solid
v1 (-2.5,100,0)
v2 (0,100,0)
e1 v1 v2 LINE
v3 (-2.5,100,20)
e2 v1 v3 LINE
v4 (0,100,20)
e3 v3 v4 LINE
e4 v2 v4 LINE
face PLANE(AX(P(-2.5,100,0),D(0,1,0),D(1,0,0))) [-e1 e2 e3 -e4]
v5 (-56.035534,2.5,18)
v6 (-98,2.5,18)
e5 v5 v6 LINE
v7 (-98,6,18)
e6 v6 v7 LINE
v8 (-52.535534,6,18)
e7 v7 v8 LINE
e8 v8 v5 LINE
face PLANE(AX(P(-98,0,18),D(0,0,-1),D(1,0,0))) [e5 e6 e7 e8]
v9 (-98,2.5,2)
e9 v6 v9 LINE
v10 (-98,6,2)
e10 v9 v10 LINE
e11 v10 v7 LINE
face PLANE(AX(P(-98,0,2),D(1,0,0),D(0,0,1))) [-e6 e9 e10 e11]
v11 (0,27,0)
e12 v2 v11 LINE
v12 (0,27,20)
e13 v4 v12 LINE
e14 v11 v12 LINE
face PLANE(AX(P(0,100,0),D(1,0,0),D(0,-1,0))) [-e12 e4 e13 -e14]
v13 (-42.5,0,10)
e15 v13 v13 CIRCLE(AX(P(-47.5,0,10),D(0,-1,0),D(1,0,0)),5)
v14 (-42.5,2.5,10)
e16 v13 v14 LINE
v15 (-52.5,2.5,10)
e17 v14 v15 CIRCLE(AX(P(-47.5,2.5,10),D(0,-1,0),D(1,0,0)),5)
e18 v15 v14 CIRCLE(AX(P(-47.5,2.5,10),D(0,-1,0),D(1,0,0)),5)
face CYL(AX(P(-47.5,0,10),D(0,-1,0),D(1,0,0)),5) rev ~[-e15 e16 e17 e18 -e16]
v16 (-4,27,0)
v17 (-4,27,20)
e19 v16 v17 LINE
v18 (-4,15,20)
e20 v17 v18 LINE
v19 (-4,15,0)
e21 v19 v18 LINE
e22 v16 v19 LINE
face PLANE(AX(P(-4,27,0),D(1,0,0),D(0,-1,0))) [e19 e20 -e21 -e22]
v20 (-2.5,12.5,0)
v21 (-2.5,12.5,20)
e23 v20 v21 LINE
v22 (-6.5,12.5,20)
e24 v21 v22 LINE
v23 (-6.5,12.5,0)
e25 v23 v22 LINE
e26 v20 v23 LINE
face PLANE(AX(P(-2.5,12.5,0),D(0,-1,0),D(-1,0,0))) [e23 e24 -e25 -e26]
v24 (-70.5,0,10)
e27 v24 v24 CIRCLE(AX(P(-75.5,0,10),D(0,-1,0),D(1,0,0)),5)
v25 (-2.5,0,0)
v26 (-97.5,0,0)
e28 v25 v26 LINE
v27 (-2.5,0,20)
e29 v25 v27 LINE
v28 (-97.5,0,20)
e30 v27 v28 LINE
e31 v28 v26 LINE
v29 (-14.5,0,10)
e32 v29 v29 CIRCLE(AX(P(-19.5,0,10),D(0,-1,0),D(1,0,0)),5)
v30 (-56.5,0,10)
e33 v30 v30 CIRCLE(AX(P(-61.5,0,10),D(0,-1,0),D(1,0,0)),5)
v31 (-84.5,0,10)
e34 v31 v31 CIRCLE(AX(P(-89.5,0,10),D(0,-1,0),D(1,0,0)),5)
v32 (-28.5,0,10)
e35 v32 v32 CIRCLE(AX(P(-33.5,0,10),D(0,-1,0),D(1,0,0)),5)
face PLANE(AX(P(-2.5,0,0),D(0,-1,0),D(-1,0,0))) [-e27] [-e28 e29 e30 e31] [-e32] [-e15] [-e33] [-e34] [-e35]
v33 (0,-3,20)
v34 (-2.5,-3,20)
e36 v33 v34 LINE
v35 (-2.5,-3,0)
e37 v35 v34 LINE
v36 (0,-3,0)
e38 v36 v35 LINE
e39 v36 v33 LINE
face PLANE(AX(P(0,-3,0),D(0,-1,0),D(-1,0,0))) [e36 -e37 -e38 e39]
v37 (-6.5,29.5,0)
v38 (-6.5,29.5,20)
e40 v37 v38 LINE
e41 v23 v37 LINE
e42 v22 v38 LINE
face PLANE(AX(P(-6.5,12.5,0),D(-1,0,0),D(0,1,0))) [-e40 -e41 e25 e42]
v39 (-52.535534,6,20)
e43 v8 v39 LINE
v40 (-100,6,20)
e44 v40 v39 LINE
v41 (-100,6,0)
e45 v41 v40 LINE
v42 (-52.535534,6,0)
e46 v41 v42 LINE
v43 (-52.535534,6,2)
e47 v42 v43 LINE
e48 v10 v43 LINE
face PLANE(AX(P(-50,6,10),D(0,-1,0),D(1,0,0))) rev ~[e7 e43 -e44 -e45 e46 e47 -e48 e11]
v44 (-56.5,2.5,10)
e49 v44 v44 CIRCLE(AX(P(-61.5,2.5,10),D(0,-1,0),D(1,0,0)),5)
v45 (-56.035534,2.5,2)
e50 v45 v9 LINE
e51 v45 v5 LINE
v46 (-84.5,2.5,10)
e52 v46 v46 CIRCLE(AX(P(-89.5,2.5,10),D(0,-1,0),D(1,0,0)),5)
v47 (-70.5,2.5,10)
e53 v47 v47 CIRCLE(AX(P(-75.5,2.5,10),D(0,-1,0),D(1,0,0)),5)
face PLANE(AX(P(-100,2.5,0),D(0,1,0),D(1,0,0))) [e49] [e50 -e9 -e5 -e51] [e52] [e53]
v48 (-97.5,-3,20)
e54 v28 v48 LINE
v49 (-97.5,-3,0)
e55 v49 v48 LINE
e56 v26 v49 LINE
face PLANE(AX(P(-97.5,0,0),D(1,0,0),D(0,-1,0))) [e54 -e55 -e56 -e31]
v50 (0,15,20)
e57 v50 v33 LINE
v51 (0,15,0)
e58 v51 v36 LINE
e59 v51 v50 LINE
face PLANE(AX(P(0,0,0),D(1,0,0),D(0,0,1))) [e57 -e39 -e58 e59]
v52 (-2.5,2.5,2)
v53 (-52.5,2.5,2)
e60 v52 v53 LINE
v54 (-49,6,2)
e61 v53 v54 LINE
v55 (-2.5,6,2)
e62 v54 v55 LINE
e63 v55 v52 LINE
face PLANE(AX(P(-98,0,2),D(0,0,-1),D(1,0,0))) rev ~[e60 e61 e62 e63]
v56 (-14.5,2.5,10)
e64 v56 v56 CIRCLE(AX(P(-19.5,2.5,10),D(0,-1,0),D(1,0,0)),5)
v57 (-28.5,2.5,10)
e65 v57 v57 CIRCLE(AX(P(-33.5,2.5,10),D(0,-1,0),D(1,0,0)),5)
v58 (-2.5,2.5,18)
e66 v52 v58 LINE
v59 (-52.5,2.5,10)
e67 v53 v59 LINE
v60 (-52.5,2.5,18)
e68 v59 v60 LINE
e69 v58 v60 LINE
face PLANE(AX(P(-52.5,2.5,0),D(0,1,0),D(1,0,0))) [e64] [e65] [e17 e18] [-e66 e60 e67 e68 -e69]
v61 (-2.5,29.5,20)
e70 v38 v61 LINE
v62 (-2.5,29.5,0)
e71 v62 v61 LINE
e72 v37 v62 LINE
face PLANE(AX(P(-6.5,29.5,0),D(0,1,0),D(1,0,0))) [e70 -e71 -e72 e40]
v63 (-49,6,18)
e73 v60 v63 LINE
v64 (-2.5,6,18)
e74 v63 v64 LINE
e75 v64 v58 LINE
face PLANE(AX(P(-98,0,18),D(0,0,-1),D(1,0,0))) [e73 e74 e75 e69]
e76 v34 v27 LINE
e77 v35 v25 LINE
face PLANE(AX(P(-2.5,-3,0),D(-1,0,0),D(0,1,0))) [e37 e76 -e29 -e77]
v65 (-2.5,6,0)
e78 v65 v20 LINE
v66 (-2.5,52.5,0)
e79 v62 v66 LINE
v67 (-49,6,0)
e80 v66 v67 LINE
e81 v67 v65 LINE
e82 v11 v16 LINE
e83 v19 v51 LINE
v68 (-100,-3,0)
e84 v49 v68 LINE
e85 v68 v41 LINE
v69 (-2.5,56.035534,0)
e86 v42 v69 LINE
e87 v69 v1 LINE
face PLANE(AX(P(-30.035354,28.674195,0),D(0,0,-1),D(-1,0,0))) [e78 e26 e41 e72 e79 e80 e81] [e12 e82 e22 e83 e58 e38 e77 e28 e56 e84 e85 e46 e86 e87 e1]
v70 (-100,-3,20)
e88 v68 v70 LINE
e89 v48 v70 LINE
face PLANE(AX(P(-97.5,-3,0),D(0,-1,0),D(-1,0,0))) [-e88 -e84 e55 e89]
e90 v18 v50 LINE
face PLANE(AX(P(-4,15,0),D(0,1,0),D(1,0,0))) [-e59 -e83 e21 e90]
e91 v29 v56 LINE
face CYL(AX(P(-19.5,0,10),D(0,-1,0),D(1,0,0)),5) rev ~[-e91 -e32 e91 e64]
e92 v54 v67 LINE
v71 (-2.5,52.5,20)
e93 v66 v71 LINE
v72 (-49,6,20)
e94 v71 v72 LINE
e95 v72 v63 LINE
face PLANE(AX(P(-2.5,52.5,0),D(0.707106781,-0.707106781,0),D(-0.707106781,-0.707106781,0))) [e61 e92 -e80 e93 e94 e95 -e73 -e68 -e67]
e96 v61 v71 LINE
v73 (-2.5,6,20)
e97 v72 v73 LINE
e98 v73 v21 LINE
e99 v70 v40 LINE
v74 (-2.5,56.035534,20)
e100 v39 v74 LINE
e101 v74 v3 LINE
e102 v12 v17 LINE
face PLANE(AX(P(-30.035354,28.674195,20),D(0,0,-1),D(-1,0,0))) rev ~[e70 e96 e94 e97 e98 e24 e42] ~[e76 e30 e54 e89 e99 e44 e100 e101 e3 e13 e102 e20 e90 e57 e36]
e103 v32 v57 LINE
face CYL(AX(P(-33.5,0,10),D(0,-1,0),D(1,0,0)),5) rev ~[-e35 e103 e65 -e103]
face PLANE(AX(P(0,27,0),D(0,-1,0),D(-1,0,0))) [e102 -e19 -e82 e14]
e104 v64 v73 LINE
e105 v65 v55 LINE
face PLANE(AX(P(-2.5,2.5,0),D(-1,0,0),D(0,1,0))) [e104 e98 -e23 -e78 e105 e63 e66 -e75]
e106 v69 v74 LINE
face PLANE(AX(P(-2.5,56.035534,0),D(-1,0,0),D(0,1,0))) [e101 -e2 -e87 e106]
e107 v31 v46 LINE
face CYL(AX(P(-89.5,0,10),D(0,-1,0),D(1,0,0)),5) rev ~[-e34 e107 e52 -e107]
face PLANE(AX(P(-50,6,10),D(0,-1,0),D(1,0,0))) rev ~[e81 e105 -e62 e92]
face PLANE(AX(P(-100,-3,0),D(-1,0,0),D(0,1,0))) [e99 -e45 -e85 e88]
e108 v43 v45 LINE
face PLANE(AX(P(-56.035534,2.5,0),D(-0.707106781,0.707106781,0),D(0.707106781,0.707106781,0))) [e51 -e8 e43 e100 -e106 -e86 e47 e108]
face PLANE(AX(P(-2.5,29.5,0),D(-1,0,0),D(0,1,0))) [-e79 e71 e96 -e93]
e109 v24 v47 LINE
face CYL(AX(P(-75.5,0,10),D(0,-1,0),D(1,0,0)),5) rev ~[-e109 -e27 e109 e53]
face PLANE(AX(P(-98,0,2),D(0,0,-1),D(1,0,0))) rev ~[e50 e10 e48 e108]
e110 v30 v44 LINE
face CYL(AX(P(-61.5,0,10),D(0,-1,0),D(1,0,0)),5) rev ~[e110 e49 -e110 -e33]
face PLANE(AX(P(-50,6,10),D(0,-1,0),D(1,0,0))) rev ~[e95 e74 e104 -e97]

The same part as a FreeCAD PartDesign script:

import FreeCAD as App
import Part
import Sketcher
from FreeCAD import Vector

doc = App.newDocument("Part")
body = doc.addObject("PartDesign::Body", "Body")

# Sketch on XY plane
sketch1 = doc.addObject("Sketcher::SketchObject", "Sketch")
body.addObject(sketch1)
sketch1.AttachmentSupport = (doc.XY_Plane, [""])
sketch1.MapMode = "FlatFace"
sketch1.addGeometry([
    Part.LineSegment(Vector(0, 27, 0), Vector(0, 100, 0)),  # 0
    Part.LineSegment(Vector(0, 100, 0), Vector(-2.5, 100, 0)),  # 1
    Part.LineSegment(Vector(-2.5, 100, 0), Vector(-2.5, 56, 0)),  # 2
    Part.LineSegment(Vector(-2.5, 56, 0), Vector(-56, 2.5, 0)),  # 3
    Part.LineSegment(Vector(-56, 2.5, 0), Vector(-100, 2.5, 0)),  # 4
    Part.LineSegment(Vector(-100, 2.5, 0), Vector(-100, -3, 0)),  # 5
    Part.LineSegment(Vector(-100, -3, 0), Vector(-97.5, -3, 0)),  # 6
    Part.LineSegment(Vector(-97.5, -3, 0), Vector(-97.5, 0, 0)),  # 7
    Part.LineSegment(Vector(-97.5, 0, 0), Vector(-2.5, 0, 0)),  # 8
    Part.LineSegment(Vector(-2.5, 0, 0), Vector(-2.5, -3, 0)),  # 9
    Part.LineSegment(Vector(-2.5, -3, 0), Vector(0, -3, 0)),  # 10
    Part.LineSegment(Vector(0, -3, 0), Vector(0, 15, 0)),  # 11
    Part.LineSegment(Vector(0, 15, 0), Vector(-4, 15, 0)),  # 12
    Part.LineSegment(Vector(-4, 15, 0), Vector(-4, 27, 0)),  # 13
    Part.LineSegment(Vector(-4, 27, 0), Vector(0, 27, 0)),  # 14
    Part.LineSegment(Vector(-52.5, 2.5, 0), Vector(-2.5, 52.5, 0)),  # 15
    Part.LineSegment(Vector(-2.5, 52.5, 0), Vector(-2.5, 29.5, 0)),  # 16
    Part.LineSegment(Vector(-2.5, 29.5, 0), Vector(-6.5, 29.5, 0)),  # 17
    Part.LineSegment(Vector(-6.5, 29.5, 0), Vector(-6.5, 12.5, 0)),  # 18
    Part.LineSegment(Vector(-6.5, 12.5, 0), Vector(-2.5, 12.5, 0)),  # 19
    Part.LineSegment(Vector(-2.5, 12.5, 0), Vector(-2.5, 2.5, 0)),  # 20
    Part.LineSegment(Vector(-2.5, 2.5, 0), Vector(-52.5, 2.5, 0)),  # 21
], False)
sketch1.addConstraint([
    Sketcher.Constraint("Coincident", 0, 2, 1, 1),
    Sketcher.Constraint("Coincident", 1, 2, 2, 1),
    Sketcher.Constraint("Coincident", 2, 2, 3, 1),
    Sketcher.Constraint("Coincident", 3, 2, 4, 1),
    Sketcher.Constraint("Coincident", 4, 2, 5, 1),
    Sketcher.Constraint("Coincident", 5, 2, 6, 1),
    Sketcher.Constraint("Coincident", 6, 2, 7, 1),
    Sketcher.Constraint("Coincident", 7, 2, 8, 1),
    Sketcher.Constraint("Coincident", 8, 2, 9, 1),
    Sketcher.Constraint("Coincident", 9, 2, 10, 1),
    Sketcher.Constraint("Coincident", 10, 2, 11, 1),
    Sketcher.Constraint("Coincident", 11, 2, 12, 1),
    Sketcher.Constraint("Coincident", 12, 2, 13, 1),
    Sketcher.Constraint("Coincident", 13, 2, 14, 1),
    Sketcher.Constraint("Coincident", 14, 2, 0, 1),
    Sketcher.Constraint("Coincident", 15, 2, 16, 1),
    Sketcher.Constraint("Coincident", 16, 2, 17, 1),
    Sketcher.Constraint("Coincident", 17, 2, 18, 1),
    Sketcher.Constraint("Coincident", 18, 2, 19, 1),
    Sketcher.Constraint("Coincident", 19, 2, 20, 1),
    Sketcher.Constraint("Coincident", 20, 2, 21, 1),
    Sketcher.Constraint("Coincident", 21, 2, 15, 1),
    Sketcher.Constraint("Vertical", 0),
    Sketcher.Constraint("Horizontal", 1),
    Sketcher.Constraint("Vertical", 2),
    Sketcher.Constraint("Horizontal", 4),
    Sketcher.Constraint("Vertical", 5),
    Sketcher.Constraint("Horizontal", 6),
    Sketcher.Constraint("Vertical", 7),
    Sketcher.Constraint("Horizontal", 8),
    Sketcher.Constraint("Vertical", 9),
    Sketcher.Constraint("Horizontal", 10),
    Sketcher.Constraint("Vertical", 11),
    Sketcher.Constraint("Horizontal", 12),
    Sketcher.Constraint("Vertical", 13),
    Sketcher.Constraint("Horizontal", 14),
    Sketcher.Constraint("Vertical", 16),
    Sketcher.Constraint("Horizontal", 17),
    Sketcher.Constraint("Vertical", 18),
    Sketcher.Constraint("Horizontal", 19),
    Sketcher.Constraint("Vertical", 20),
    Sketcher.Constraint("Horizontal", 21),
    Sketcher.Constraint("PointOnObject", 0, 2, -2),
    Sketcher.Constraint("PointOnObject", 7, 2, -1),
    Sketcher.Constraint("PointOnObject", 10, 2, -2),
    Sketcher.Constraint("Parallel", 3, 15),
    Sketcher.Constraint("Horizontal", 6, 2, 9, 2),
    Sketcher.Constraint("Horizontal", 4, 2, 20, 2),
    Sketcher.Constraint("Vertical", 2, 2, 8, 2),
    Sketcher.Constraint("Vertical", 9, 2, 15, 2),
    Sketcher.Constraint("Vertical", 16, 2, 19, 2),
    Sketcher.Constraint("Equal", 1, 6),
    Sketcher.Constraint("Equal", 14, 17),
    Sketcher.Constraint("Equal", 4, 2),
    Sketcher.Constraint("DistanceX", 8, 1, 8, 2, 95.0),
    Sketcher.Constraint("DistanceX", 12, 2, 12, 1, 4.0),
    Sketcher.Constraint("DistanceX", 21, 2, 21, 1, 50.0),
    Sketcher.Constraint("DistanceY", 0, 1, 0, 2, 73.0),
    Sketcher.Constraint("DistanceY", 7, 1, 7, 2, 3.0),
    Sketcher.Constraint("DistanceY", 11, 1, 11, 2, 18.0),
    Sketcher.Constraint("DistanceY", 13, 1, 13, 2, 12.0),
    Sketcher.Constraint("DistanceY", 16, 2, 16, 1, 23.0),
    Sketcher.Constraint("DistanceY", 18, 2, 18, 1, 17.0),
    Sketcher.Constraint("DistanceY", 20, 2, 20, 1, 10.0),
    Sketcher.Constraint("DistanceX", 1, 2, 1, 1, 2.5),
    Sketcher.Constraint("Distance", 3, 75.710678),
])
pad1 = doc.addObject("PartDesign::Pad", "Pad")
body.addObject(pad1)
pad1.Profile = sketch1
pad1.Length = 20

# Sketch on XZ plane
sketch2 = doc.addObject("Sketcher::SketchObject", "Sketch001")
body.addObject(sketch2)
sketch2.AttachmentSupport = (doc.XZ_Plane, [""])
sketch2.MapMode = "FlatFace"
sketch2.addGeometry([
    Part.LineSegment(Vector(-100, 20, 0), Vector(-100, 0, 0)),  # 0
    Part.LineSegment(Vector(-100, 0, 0), Vector(0, 0, 0)),  # 1
    Part.LineSegment(Vector(0, 0, 0), Vector(0, 20, 0)),  # 2
    Part.LineSegment(Vector(0, 20, 0), Vector(-100, 20, 0)),  # 3
    Part.LineSegment(Vector(-2, 2, 0), Vector(-98, 2, 0)),  # 4
    Part.LineSegment(Vector(-98, 2, 0), Vector(-98, 18, 0)),  # 5
    Part.LineSegment(Vector(-98, 18, 0), Vector(-2, 18, 0)),  # 6
    Part.LineSegment(Vector(-2, 18, 0), Vector(-2, 2, 0)),  # 7
], False)
sketch2.addConstraint([
    Sketcher.Constraint("Coincident", 0, 2, 1, 1),
    Sketcher.Constraint("Coincident", 1, 2, 2, 1),
    Sketcher.Constraint("Coincident", 2, 2, 3, 1),
    Sketcher.Constraint("Coincident", 3, 2, 0, 1),
    Sketcher.Constraint("Coincident", 4, 2, 5, 1),
    Sketcher.Constraint("Coincident", 5, 2, 6, 1),
    Sketcher.Constraint("Coincident", 6, 2, 7, 1),
    Sketcher.Constraint("Coincident", 7, 2, 4, 1),
    Sketcher.Constraint("Vertical", 0),
    Sketcher.Constraint("Horizontal", 1),
    Sketcher.Constraint("Vertical", 2),
    Sketcher.Constraint("Horizontal", 3),
    Sketcher.Constraint("Horizontal", 4),
    Sketcher.Constraint("Vertical", 5),
    Sketcher.Constraint("Horizontal", 6),
    Sketcher.Constraint("Vertical", 7),
    Sketcher.Constraint("Coincident", 1, 2, -1, 1),
    Sketcher.Constraint("DistanceX", 1, 1, 1, 2, 100.0),
    Sketcher.Constraint("DistanceX", 4, 2, 4, 1, 96.0),
    Sketcher.Constraint("DistanceY", 0, 2, 0, 1, 20.0),
    Sketcher.Constraint("DistanceY", 5, 1, 5, 2, 16.0),
    Sketcher.Constraint("DistanceX", 4, 2, -1, 1, 98.0),
    Sketcher.Constraint("DistanceY", -1, 1, 4, 2, 2.0),
])
pad2 = doc.addObject("PartDesign::Pad", "Pad001")
body.addObject(pad2)
pad2.Profile = sketch2
pad2.Length = 6
pad2.Reversed = True

# Sketch on XZ plane
sketch3 = doc.addObject("Sketcher::SketchObject", "Sketch002")
body.addObject(sketch3)
sketch3.AttachmentSupport = (doc.XZ_Plane, [""])
sketch3.MapMode = "FlatFace"
sketch3.addGeometry(Part.Circle(Vector(-90, 10, 0), Vector(0, 0, 1), 5), False)
sketch3.addConstraint([
    Sketcher.Constraint("Diameter", 0, 10.0),
    Sketcher.Constraint("DistanceY", -1, 1, 0, 3, 10.0),
    Sketcher.Constraint("DistanceX", 0, 3, -1, 1, 89.5),
])
pocket1 = doc.addObject("PartDesign::Pocket", "Pocket")
body.addObject(pocket1)
pocket1.Profile = sketch3
pocket1.Length = 2.5
doc.recompute()

linearpattern = doc.addObject("PartDesign::LinearPattern", "LinearPattern")
body.addObject(linearpattern)
linearpattern.Originals = [pocket1]
linearpattern.Direction = (doc.X_Axis, [""])
linearpattern.Mode = "offset"
linearpattern.Offset = 14
linearpattern.Occurrences = 6
body.Tip = linearpattern

doc.recompute()
